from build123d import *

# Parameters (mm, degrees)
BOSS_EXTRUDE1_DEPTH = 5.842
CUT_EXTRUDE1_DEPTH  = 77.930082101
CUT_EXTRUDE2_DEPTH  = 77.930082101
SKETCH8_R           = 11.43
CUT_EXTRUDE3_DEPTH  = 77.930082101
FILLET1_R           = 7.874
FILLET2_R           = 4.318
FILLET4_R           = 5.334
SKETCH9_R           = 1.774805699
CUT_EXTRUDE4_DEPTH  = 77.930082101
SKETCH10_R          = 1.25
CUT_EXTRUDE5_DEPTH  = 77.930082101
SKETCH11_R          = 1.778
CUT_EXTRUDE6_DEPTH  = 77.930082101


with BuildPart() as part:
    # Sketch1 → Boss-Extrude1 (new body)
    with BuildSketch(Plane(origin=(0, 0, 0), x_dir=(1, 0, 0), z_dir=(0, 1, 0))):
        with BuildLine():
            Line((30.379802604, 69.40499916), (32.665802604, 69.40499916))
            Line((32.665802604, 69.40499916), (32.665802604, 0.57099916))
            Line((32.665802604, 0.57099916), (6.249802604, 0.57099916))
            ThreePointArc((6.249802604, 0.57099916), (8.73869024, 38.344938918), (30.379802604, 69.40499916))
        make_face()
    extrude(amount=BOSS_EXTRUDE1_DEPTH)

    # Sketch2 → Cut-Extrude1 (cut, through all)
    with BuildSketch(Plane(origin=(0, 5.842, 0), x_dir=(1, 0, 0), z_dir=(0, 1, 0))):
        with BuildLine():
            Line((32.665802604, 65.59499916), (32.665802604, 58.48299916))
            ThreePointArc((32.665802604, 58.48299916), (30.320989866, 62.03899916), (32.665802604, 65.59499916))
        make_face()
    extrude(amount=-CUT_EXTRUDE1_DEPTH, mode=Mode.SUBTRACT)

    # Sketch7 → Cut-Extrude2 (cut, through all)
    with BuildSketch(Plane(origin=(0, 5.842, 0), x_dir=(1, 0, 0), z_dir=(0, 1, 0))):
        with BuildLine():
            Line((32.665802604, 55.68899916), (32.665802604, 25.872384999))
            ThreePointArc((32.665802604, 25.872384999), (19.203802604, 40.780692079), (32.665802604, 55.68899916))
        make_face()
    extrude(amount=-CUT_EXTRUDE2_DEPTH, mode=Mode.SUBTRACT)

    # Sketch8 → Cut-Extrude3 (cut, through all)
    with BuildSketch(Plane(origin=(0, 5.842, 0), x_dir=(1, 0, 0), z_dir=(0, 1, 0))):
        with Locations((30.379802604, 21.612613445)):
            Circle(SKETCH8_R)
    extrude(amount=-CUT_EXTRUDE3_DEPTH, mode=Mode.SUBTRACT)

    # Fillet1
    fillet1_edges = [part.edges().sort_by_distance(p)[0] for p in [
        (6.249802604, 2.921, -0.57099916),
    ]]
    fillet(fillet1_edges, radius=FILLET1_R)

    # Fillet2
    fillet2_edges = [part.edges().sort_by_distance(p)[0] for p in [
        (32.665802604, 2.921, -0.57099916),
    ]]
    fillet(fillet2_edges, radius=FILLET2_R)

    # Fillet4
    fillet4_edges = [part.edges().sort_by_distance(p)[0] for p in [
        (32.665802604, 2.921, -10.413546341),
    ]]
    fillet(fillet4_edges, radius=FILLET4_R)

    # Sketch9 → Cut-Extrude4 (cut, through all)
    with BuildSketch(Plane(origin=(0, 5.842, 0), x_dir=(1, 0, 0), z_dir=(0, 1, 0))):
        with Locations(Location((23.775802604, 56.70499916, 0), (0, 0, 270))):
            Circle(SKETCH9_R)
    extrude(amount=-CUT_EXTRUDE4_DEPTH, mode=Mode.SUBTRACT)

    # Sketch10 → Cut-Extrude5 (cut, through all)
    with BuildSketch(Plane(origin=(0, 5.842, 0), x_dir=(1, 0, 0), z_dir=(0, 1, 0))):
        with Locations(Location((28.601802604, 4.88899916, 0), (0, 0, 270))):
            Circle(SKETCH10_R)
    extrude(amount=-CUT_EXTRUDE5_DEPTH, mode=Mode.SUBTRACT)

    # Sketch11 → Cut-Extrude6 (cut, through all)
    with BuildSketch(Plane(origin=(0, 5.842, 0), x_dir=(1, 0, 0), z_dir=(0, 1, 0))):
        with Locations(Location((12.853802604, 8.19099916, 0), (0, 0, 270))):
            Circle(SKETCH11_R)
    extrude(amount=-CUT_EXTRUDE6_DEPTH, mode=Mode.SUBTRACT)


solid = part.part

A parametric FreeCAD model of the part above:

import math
import FreeCAD as App
import Part
import Sketcher
Q = App.Units.Quantity


def edges_at(feature, points):
    """Names of the edges that pass closest to the given points."""
    edges = feature.Shape.Edges
    near = lambda p: min(range(len(edges)), key=lambda i: edges[i].distToShape(Part.Vertex(*p))[0])
    return sorted({f"Edge{near(p) + 1}" for p in points})

doc = App.newDocument("Part")
body = doc.addObject("PartDesign::Body", "Body")

sketch1 = body.newObject("Sketcher::SketchObject", "Sketch")
sketch1.AttachmentSupport = (doc.getObject("XZ_Plane"), [""])
sketch1.MapMode = "FlatFace"
sketch1.addGeometry([
    Part.LineSegment(App.Vector(32.7, -69.4, 0), App.Vector(30.4, -69.4, 0)),
    Part.ArcOfCircle(Part.Circle(App.Vector(75.4, -15, 0), App.Vector(0, 0, 1), 70.6), math.radians(168), math.radians(230)),
    Part.LineSegment(App.Vector(6.2, -0.6, 0), App.Vector(32.7, -0.6, 0)),
    Part.LineSegment(App.Vector(32.7, -0.6, 0), App.Vector(32.7, -69.4, 0)),
], False)
sketch1.addConstraint([
    Sketcher.Constraint("Coincident", 0, 2, 1, 2),
    Sketcher.Constraint("Coincident", 1, 1, 2, 1),
    Sketcher.Constraint("Coincident", 2, 2, 3, 1),
    Sketcher.Constraint("Coincident", 3, 2, 0, 1),
    Sketcher.Constraint("Horizontal", 0),
    Sketcher.Constraint("Horizontal", 2),
    Sketcher.Constraint("Vertical", 3),
    Sketcher.Constraint("Radius", 1, Q("2.78 in")),
    Sketcher.Constraint("DistanceX", 0, 2, 0, 1, Q("0.09 in")),
    Sketcher.Constraint("DistanceX", 2, 1, 2, 2, Q("1.04 in")),
    Sketcher.Constraint("DistanceY", 3, 2, 3, 1, Q("2.71 in")),
    Sketcher.Constraint("DistanceY", 0, 2, -1, 1, Q("69.404999 mm")),
    Sketcher.Constraint("DistanceX", -1, 1, 1, 3, Q("75.374908 mm")),
])
pad1 = body.newObject("PartDesign::Pad", "Pad")
pad1.Profile = sketch1
pad1.Length = Q("0.23 in")
pad1.Reversed = True

sketch2 = body.newObject("Sketcher::SketchObject", "Sketch001")
sketch2.AttachmentSupport = (doc.getObject("XZ_Plane"), [""])
sketch2.MapMode = "FlatFace"
sketch2.AttachmentOffset = App.Placement(App.Vector(0, 0, -0.23 * 25.4), App.Rotation())
sketch2.addGeometry([
    Part.LineSegment(App.Vector(32.7, -58.5, 0), App.Vector(32.7, -65.6, 0)),
    Part.ArcOfCircle(Part.Circle(App.Vector(34.2, -62, 0), App.Vector(0, 0, 1), 3.9), math.radians(113), math.radians(247)),
], False)
sketch2.addConstraint([
    Sketcher.Constraint("Coincident", 0, 1, 1, 1),
    Sketcher.Constraint("Coincident", 1, 2, 0, 2),
    Sketcher.Constraint("Vertical", 0),
    Sketcher.Constraint("DistanceY", 0, 2, 0, 1, Q("0.28 in")),
    Sketcher.Constraint("DistanceX", 0, 1, 1, 3, Q("0.06 in")),
    Sketcher.Constraint("DistanceY", 1, 3, -1, 1, Q("62.038999 mm")),
    Sketcher.Constraint("DistanceX", -1, 1, 1, 3, Q("34.189803 mm")),
])
pocket1 = body.newObject("PartDesign::Pocket", "Pocket")
pocket1.Profile = sketch2
pocket1.Type = "ThroughAll"
pocket1.Reversed = True

sketch3 = body.newObject("Sketcher::SketchObject", "Sketch002")
sketch3.AttachmentSupport = (doc.getObject("XZ_Plane"), [""])
sketch3.MapMode = "FlatFace"
sketch3.AttachmentOffset = App.Placement(App.Vector(0, 0, -0.23 * 25.4), App.Rotation())
sketch3.addGeometry([
    Part.LineSegment(App.Vector(33, -26, 0), App.Vector(33, -56, 0)),
    Part.ArcOfCircle(Part.Circle(App.Vector(34, -41, 0), App.Vector(0, 0, 1), 15), math.radians(96), math.radians(264)),
], False)
sketch3.addConstraint([
    Sketcher.Constraint("Coincident", 0, 1, 1, 1),
    Sketcher.Constraint("Coincident", 1, 2, 0, 2),
    Sketcher.Constraint("Vertical", 0),
    Sketcher.Constraint("Radius", 1, Q("0.59 in")),
    Sketcher.Constraint("DistanceX", 0, 1, 1, 3, Q("0.06 in")),
    Sketcher.Constraint("DistanceY", 1, 2, -1, 1, Q("55.688999 mm")),
    Sketcher.Constraint("DistanceX", -1, 1, 1, 3, Q("34.189803 mm")),
])
pocket2 = body.newObject("PartDesign::Pocket", "Pocket001")
pocket2.Profile = sketch3
pocket2.Type = "ThroughAll"
pocket2.Reversed = True

sketch4 = body.newObject("Sketcher::SketchObject", "Sketch003")
sketch4.AttachmentSupport = (doc.getObject("XZ_Plane"), [""])
sketch4.MapMode = "FlatFace"
sketch4.AttachmentOffset = App.Placement(App.Vector(0, 0, -0.23 * 25.4), App.Rotation())
sketch4.addGeometry(Part.Circle(App.Vector(30, -22, 0), App.Vector(0, 0, 1), 11), False)
sketch4.addConstraint([
    Sketcher.Constraint("Diameter", 0, Q("0.9 in")),
    Sketcher.Constraint("DistanceX", -1, 1, 0, 3, Q("30.379803 mm")),
    Sketcher.Constraint("DistanceY", 0, 3, -1, 1, Q("21.612613 mm")),
])
pocket3 = body.newObject("PartDesign::Pocket", "Pocket002")
pocket3.Profile = sketch4
pocket3.Type = "ThroughAll"
pocket3.Reversed = True
doc.recompute()

fillet = body.newObject("PartDesign::Fillet", "Fillet")
fillet.Base = (pocket3, edges_at(pocket3, [(6.25, 2.921, -0.571)]))
fillet.Radius = Q("0.31 in")
doc.recompute()

fillet2 = body.newObject("PartDesign::Fillet", "Fillet001")
fillet2.Base = (fillet, edges_at(fillet, [(32.666, 2.921, -0.571)]))
fillet2.Radius = Q("0.17 in")
doc.recompute()

fillet3 = body.newObject("PartDesign::Fillet", "Fillet002")
fillet3.Base = (fillet2, edges_at(fillet2, [(32.666, 2.921, -10.414)]))
fillet3.Radius = Q("0.21 in")

sketch5 = body.newObject("Sketcher::SketchObject", "Sketch004")
sketch5.AttachmentSupport = (doc.getObject("XZ_Plane"), [""])
sketch5.MapMode = "FlatFace"
sketch5.AttachmentOffset = App.Placement(App.Vector(0, 0, -0.23 * 25.4), App.Rotation())
sketch5.addGeometry(Part.Circle(App.Vector(23.8, -56.7, 0), App.Vector(0, 0, 1), 1.8), False)
sketch5.addConstraint([
    Sketcher.Constraint("Diameter", 0, Q("3.549611 mm")),
    Sketcher.Constraint("DistanceY", 0, 3, -1, 1, Q("56.704999 mm")),
    Sketcher.Constraint("DistanceX", -1, 1, 0, 3, Q("23.775803 mm")),
])
pocket4 = body.newObject("PartDesign::Pocket", "Pocket003")
pocket4.Profile = sketch5
pocket4.Type = "ThroughAll"
pocket4.Reversed = True

sketch6 = body.newObject("Sketcher::SketchObject", "Sketch005")
sketch6.AttachmentSupport = (doc.getObject("XZ_Plane"), [""])
sketch6.MapMode = "FlatFace"
sketch6.AttachmentOffset = App.Placement(App.Vector(0, 0, -0.23 * 25.4), App.Rotation())
sketch6.addGeometry(Part.Circle(App.Vector(28.6, -4.9, 0), App.Vector(0, 0, 1), 1.2), False)
sketch6.addConstraint([
    Sketcher.Constraint("Diameter", 0, Q("2.5 mm")),
    Sketcher.Constraint("DistanceY", 0, 3, -1, 1, Q("4.888999 mm")),
    Sketcher.Constraint("DistanceX", -1, 1, 0, 3, Q("28.601803 mm")),
])
pocket5 = body.newObject("PartDesign::Pocket", "Pocket004")
pocket5.Profile = sketch6
pocket5.Type = "ThroughAll"
pocket5.Reversed = True

sketch7 = body.newObject("Sketcher::SketchObject", "Sketch006")
sketch7.AttachmentSupport = (doc.getObject("XZ_Plane"), [""])
sketch7.MapMode = "FlatFace"
sketch7.AttachmentOffset = App.Placement(App.Vector(0, 0, -0.23 * 25.4), App.Rotation())
sketch7.addGeometry(Part.Circle(App.Vector(12.9, -8.2, 0), App.Vector(0, 0, 1), 1.8), False)
sketch7.addConstraint([
    Sketcher.Constraint("Diameter", 0, Q("0.14 in")),
    Sketcher.Constraint("DistanceY", 0, 3, -1, 1, Q("8.190999 mm")),
    Sketcher.Constraint("DistanceX", -1, 1, 0, 3, Q("12.853803 mm")),
])
pocket6 = body.newObject("PartDesign::Pocket", "Pocket005")
pocket6.Profile = sketch7
pocket6.Type = "ThroughAll"
pocket6.Reversed = True

doc.recompute()
